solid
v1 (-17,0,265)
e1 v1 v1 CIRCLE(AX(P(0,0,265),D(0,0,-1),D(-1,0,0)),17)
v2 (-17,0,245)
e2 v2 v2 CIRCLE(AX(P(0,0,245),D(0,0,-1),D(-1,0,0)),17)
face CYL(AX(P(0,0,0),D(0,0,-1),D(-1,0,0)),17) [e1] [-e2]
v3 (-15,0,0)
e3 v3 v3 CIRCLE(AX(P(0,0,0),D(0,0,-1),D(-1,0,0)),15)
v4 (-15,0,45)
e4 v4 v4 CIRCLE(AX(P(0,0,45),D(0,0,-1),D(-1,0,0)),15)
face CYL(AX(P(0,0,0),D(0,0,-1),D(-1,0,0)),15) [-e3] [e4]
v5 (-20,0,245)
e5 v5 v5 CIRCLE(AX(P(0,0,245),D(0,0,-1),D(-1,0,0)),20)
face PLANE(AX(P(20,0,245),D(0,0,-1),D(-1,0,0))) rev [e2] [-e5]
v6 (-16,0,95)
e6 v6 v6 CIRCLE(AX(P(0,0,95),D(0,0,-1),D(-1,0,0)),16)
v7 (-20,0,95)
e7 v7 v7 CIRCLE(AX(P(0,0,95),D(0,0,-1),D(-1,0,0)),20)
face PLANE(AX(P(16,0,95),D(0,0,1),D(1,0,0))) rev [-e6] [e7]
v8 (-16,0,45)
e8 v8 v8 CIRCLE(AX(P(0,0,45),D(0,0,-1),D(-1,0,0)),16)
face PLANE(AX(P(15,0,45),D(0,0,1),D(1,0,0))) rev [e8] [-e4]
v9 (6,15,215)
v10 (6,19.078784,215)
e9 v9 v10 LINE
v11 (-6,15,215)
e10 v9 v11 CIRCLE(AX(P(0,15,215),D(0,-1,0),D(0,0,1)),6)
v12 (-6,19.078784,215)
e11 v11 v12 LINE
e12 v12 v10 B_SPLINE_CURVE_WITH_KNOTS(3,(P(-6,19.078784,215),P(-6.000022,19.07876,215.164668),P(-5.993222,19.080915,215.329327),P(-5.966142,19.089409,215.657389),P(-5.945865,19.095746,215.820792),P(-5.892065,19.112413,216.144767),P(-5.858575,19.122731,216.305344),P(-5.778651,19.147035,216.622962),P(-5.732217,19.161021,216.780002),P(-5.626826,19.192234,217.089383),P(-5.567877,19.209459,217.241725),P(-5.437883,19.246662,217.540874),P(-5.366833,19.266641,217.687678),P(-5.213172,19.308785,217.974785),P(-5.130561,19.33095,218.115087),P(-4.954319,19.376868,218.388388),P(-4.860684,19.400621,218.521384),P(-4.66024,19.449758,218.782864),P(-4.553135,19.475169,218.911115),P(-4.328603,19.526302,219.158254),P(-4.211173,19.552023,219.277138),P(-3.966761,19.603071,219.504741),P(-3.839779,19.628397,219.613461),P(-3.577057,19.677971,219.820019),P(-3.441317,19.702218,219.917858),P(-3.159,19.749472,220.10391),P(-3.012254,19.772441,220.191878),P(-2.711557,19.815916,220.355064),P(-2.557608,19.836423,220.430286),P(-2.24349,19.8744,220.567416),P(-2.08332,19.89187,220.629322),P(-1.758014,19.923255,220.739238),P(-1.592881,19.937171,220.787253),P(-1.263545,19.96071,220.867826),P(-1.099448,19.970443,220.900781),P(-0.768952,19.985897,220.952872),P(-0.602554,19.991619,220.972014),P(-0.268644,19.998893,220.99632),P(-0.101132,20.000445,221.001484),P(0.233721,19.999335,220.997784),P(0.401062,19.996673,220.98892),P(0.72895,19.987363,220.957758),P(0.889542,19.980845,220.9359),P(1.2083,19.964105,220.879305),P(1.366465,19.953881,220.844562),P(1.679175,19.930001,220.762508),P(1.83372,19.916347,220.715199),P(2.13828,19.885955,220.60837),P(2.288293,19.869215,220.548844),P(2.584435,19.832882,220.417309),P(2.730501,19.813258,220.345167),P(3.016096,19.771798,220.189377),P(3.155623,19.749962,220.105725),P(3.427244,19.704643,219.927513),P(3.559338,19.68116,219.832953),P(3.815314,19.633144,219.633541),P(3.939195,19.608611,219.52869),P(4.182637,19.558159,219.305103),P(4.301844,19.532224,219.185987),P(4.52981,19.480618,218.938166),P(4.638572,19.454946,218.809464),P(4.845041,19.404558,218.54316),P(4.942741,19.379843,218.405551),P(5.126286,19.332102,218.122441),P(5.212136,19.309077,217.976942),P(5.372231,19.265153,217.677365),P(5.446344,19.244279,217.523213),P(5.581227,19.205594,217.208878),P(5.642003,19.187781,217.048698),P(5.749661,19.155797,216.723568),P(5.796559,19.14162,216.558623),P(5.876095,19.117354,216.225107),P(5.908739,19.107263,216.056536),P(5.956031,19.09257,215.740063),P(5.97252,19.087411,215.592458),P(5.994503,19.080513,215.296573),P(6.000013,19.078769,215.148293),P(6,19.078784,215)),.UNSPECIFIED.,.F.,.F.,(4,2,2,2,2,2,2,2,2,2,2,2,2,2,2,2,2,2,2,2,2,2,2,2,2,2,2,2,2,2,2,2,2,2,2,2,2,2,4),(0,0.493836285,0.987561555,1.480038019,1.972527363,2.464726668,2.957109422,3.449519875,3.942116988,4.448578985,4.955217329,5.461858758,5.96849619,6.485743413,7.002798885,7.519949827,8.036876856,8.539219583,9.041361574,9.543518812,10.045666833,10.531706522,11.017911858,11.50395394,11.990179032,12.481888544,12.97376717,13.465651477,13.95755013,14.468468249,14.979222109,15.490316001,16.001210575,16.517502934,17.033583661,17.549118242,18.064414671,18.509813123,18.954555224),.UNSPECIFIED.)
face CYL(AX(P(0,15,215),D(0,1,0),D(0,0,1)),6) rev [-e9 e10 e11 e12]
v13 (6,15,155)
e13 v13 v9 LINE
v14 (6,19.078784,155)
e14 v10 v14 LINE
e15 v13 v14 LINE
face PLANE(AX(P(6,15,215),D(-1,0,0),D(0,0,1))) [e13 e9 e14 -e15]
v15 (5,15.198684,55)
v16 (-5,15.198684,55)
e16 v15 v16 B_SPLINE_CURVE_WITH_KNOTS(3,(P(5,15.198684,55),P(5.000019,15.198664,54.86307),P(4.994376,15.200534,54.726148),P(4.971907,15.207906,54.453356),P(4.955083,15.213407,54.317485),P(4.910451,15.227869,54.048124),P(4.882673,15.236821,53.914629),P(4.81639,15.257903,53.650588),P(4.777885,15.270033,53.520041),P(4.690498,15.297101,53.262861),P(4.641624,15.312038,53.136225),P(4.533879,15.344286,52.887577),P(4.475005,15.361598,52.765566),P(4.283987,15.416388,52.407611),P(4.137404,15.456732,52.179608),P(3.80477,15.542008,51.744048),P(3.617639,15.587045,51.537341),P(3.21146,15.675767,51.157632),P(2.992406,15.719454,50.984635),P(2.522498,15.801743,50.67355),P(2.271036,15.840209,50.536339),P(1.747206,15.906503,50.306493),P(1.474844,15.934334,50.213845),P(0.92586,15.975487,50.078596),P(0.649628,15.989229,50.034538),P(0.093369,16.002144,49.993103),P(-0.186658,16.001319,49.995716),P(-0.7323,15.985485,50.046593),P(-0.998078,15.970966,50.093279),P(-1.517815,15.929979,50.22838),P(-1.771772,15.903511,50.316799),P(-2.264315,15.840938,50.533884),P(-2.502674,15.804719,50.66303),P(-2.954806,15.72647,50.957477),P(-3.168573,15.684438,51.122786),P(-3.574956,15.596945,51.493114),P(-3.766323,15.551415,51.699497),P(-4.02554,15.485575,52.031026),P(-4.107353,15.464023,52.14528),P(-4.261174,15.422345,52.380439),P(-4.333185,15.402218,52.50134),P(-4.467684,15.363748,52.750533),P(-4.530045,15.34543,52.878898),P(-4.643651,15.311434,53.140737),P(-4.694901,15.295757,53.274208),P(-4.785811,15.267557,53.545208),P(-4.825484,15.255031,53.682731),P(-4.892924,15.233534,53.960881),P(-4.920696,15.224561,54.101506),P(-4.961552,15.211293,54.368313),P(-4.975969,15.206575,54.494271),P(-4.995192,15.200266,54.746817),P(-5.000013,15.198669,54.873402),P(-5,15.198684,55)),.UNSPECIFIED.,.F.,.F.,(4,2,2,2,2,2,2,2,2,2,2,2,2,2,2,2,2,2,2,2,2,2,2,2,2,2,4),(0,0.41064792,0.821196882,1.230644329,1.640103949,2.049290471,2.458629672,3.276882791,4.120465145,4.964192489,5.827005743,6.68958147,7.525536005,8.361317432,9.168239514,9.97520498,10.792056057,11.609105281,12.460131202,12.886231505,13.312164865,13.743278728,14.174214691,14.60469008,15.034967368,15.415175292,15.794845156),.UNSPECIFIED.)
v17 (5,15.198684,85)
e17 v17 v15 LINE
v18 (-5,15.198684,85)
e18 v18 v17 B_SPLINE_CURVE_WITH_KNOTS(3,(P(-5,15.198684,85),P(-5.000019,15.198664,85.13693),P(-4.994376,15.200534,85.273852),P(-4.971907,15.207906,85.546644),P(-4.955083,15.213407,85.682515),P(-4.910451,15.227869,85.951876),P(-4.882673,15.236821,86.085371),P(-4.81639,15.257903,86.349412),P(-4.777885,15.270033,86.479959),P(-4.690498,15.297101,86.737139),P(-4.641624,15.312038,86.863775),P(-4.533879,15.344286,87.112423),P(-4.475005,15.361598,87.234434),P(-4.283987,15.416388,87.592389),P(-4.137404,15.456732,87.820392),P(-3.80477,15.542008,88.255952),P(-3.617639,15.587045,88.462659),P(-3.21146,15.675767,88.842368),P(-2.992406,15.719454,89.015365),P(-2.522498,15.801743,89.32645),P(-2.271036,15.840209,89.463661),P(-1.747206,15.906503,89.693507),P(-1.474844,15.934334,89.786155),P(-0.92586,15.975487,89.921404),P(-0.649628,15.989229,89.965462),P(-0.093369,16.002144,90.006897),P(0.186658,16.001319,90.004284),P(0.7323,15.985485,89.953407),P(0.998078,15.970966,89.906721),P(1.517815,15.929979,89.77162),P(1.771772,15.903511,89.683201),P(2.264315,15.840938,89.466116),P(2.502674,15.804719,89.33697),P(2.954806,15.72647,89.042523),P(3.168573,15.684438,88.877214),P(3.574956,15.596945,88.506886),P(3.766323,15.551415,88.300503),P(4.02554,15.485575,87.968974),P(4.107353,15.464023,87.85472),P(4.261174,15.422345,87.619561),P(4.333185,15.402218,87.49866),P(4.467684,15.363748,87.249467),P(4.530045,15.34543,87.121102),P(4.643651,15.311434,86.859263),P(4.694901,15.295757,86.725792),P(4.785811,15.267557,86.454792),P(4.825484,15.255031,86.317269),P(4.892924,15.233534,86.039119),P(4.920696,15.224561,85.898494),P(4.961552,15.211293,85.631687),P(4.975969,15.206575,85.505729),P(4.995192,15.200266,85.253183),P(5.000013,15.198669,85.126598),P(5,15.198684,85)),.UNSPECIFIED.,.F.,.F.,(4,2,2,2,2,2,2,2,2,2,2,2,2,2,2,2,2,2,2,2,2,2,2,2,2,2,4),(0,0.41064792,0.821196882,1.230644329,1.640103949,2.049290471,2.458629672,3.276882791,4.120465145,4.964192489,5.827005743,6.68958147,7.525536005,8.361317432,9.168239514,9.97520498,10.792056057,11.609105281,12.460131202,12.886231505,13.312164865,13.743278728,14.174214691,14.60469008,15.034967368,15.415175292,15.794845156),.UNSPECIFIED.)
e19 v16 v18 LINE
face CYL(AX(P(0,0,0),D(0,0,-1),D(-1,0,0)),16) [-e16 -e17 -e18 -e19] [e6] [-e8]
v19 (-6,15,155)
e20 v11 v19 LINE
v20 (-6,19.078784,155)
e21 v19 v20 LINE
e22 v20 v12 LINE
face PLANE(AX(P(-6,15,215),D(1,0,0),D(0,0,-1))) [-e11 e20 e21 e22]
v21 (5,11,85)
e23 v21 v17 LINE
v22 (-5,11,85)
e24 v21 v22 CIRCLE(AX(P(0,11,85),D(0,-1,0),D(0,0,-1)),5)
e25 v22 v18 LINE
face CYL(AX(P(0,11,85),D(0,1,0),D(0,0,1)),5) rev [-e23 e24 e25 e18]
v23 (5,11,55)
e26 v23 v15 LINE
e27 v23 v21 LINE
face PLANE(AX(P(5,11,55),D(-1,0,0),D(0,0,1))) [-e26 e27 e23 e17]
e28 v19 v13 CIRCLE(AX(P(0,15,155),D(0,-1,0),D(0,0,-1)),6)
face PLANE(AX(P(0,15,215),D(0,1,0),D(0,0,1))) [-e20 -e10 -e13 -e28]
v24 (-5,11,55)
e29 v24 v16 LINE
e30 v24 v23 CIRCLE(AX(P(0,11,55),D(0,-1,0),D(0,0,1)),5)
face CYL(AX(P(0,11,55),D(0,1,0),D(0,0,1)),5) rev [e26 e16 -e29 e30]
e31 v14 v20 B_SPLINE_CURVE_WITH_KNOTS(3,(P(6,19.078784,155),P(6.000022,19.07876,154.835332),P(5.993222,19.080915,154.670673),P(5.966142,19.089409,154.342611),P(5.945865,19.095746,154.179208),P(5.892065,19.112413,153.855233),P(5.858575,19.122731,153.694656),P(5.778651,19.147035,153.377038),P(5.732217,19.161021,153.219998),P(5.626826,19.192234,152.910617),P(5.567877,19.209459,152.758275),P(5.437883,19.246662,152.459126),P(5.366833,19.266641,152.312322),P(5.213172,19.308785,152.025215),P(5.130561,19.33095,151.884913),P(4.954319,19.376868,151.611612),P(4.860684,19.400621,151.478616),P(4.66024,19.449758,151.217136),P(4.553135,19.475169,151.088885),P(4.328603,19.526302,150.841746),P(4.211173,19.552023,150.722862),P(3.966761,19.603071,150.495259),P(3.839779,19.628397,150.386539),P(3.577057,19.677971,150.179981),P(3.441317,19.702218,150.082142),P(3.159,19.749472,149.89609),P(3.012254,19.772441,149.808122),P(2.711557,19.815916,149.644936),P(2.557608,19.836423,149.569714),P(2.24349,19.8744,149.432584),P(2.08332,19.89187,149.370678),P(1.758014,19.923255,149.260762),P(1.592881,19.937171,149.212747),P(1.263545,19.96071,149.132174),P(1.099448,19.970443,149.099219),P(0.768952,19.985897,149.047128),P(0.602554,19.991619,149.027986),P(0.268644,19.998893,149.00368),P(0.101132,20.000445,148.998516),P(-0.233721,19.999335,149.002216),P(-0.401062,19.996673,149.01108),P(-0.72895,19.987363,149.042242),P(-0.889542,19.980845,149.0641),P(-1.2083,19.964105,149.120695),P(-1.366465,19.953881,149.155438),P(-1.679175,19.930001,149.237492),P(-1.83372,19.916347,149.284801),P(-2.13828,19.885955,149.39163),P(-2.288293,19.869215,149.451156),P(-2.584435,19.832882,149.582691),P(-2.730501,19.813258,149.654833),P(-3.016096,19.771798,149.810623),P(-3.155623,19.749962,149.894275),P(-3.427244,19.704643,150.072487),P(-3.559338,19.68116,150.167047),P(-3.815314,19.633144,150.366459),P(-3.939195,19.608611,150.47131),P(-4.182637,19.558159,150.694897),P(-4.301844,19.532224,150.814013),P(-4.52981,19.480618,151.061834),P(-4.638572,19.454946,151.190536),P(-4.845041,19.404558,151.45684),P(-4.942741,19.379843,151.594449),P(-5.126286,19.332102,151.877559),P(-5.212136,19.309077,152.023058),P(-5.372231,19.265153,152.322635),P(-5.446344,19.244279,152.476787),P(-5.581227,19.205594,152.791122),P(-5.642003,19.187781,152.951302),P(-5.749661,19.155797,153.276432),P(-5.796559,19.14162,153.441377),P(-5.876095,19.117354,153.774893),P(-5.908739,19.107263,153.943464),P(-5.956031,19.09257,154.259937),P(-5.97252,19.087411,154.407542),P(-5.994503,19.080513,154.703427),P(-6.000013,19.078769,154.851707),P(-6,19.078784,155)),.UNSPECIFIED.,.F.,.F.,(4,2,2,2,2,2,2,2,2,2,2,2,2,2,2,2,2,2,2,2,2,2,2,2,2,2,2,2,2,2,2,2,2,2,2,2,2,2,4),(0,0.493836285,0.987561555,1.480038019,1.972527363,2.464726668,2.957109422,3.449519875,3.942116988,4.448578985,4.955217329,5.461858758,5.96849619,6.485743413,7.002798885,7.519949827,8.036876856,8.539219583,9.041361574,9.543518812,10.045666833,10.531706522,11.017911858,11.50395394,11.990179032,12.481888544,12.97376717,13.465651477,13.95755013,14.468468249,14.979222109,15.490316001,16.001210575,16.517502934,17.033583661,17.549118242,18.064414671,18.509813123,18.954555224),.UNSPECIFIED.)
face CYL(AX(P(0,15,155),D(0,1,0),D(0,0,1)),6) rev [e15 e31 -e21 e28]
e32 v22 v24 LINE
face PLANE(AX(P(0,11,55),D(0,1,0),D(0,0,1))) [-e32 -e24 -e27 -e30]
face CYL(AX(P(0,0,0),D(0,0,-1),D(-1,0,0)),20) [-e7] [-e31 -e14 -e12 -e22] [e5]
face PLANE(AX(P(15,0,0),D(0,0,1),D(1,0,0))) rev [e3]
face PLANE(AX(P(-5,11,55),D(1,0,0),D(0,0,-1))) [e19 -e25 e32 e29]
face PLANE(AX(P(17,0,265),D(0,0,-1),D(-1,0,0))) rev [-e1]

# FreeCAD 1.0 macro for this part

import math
import FreeCAD as App
import Part
import Sketcher

V = App.Vector


def add_polygon(sketch, points):
    """Adds a closed chain of lines whose ends are joined by coincident constraints."""
    first, n = sketch.GeometryCount, len(points)
    for a, b in zip(points, points[1:] + points[:1]):
        sketch.addGeometry(Part.LineSegment(App.Vector(*a, 0), App.Vector(*b, 0)), False)
    for i in range(n):
        sketch.addConstraint(Sketcher.Constraint("Coincident", first + i, 2, first + (i + 1) % n, 1))

doc = App.newDocument("Part")
body = doc.addObject("PartDesign::Body", "Body")

sketch1 = body.newObject("Sketcher::SketchObject", "Sketch")
sketch1.AttachmentSupport = (doc.getObject("XZ_Plane"), [""])
sketch1.MapMode = "FlatFace"
add_polygon(sketch1, [(0, 0), (0, 265), (17, 265), (17, 245), (20, 245), (20, 95), (16, 95), (16, 45), (15, 45), (15, 0)])
sketch1.addConstraint([
    Sketcher.Constraint("Vertical", 0),
    Sketcher.Constraint("Horizontal", 1),
    Sketcher.Constraint("Vertical", 2),
    Sketcher.Constraint("Horizontal", 3),
    Sketcher.Constraint("Vertical", 4),
    Sketcher.Constraint("Horizontal", 5),
    Sketcher.Constraint("Vertical", 6),
    Sketcher.Constraint("Horizontal", 7),
    Sketcher.Constraint("Vertical", 8),
    Sketcher.Constraint("Horizontal", 9),
    Sketcher.Constraint("Coincident", 9, 2, -1, 1),
    Sketcher.Constraint("DistanceX", 1, 1, 1, 2, 17.0),
    Sketcher.Constraint("DistanceX", 3, 1, 3, 2, 3.0),
    Sketcher.Constraint("DistanceX", 5, 2, 5, 1, 4.0),
    Sketcher.Constraint("DistanceX", 7, 2, 7, 1, 1.0),
    Sketcher.Constraint("DistanceY", 0, 1, 0, 2, 265.0),
    Sketcher.Constraint("DistanceY", 2, 2, 2, 1, 20.0),
    Sketcher.Constraint("DistanceY", 4, 2, 4, 1, 150.0),
    Sketcher.Constraint("DistanceY", 6, 2, 6, 1, 50.0),
])
revolution = body.newObject("PartDesign::Revolution", "Revolution")
revolution.Profile = sketch1
revolution.ReferenceAxis = (sketch1, ["V_Axis"])
revolution.Angle = 360

sketch2 = body.newObject("Sketcher::SketchObject", "Sketch001")
sketch2.AttachmentSupport = (doc.getObject("XZ_Plane"), [""])
sketch2.MapMode = "FlatFace"
sketch2.AttachmentOffset = App.Placement(V(0, 0, -16), App.Rotation())
sketch2.addGeometry([
    Part.LineSegment(V(5, 55, 0), V(5, 85, 0)),
    Part.ArcOfCircle(Part.Circle(V(0, 85, 0), V(0, 0, 1), 5), math.radians(0), math.radians(180)),
    Part.LineSegment(V(-5, 85, 0), V(-5, 55, 0)),
    Part.ArcOfCircle(Part.Circle(V(0, 55, 0), V(0, 0, 1), 5), math.radians(180), math.radians(360)),
], False)
sketch2.addConstraint([
    Sketcher.Constraint("Tangent", 0, 2, 1, 1),
    Sketcher.Constraint("Tangent", 1, 2, 2, 1),
    Sketcher.Constraint("Tangent", 2, 2, 3, 1),
    Sketcher.Constraint("Tangent", 3, 2, 0, 1),
    Sketcher.Constraint("Vertical", 0),
    Sketcher.Constraint("Vertical", 2),
    Sketcher.Constraint("PointOnObject", 1, 3, -2),
    Sketcher.Constraint("Radius", 1, 5.0),
    Sketcher.Constraint("DistanceY", 0, 1, 0, 2, 30.0),
    Sketcher.Constraint("DistanceY", -1, 1, 1, 3, 85.0),
])
pocket1 = body.newObject("PartDesign::Pocket", "Pocket")
pocket1.Profile = sketch2
pocket1.Length = 5
pocket1.Reversed = True

sketch3 = body.newObject("Sketcher::SketchObject", "Sketch002")
sketch3.AttachmentSupport = (doc.getObject("XZ_Plane"), [""])
sketch3.MapMode = "FlatFace"
sketch3.AttachmentOffset = App.Placement(V(0, 0, -20), App.Rotation())
sketch3.addGeometry([
    Part.LineSegment(V(-6, 215, 0), V(-6, 155, 0)),
    Part.ArcOfCircle(Part.Circle(V(0, 155, 0), V(0, 0, 1), 6), math.radians(180), math.radians(360)),
    Part.LineSegment(V(6, 155, 0), V(6, 215, 0)),
    Part.ArcOfCircle(Part.Circle(V(0, 215, 0), V(0, 0, 1), 6), math.radians(0), math.radians(180)),
], False)
sketch3.addConstraint([
    Sketcher.Constraint("Tangent", 0, 2, 1, 1),
    Sketcher.Constraint("Tangent", 1, 2, 2, 1),
    Sketcher.Constraint("Tangent", 2, 2, 3, 1),
    Sketcher.Constraint("Tangent", 3, 2, 0, 1),
    Sketcher.Constraint("Vertical", 0),
    Sketcher.Constraint("Vertical", 2),
    Sketcher.Constraint("PointOnObject", 1, 3, -2),
    Sketcher.Constraint("Radius", 1, 6.0),
    Sketcher.Constraint("DistanceY", 0, 2, 0, 1, 60.0),
    Sketcher.Constraint("DistanceY", -1, 1, 1, 3, 155.0),
])
pocket2 = body.newObject("PartDesign::Pocket", "Pocket001")
pocket2.Profile = sketch3
pocket2.Length = 5
pocket2.Reversed = True

doc.recompute()
